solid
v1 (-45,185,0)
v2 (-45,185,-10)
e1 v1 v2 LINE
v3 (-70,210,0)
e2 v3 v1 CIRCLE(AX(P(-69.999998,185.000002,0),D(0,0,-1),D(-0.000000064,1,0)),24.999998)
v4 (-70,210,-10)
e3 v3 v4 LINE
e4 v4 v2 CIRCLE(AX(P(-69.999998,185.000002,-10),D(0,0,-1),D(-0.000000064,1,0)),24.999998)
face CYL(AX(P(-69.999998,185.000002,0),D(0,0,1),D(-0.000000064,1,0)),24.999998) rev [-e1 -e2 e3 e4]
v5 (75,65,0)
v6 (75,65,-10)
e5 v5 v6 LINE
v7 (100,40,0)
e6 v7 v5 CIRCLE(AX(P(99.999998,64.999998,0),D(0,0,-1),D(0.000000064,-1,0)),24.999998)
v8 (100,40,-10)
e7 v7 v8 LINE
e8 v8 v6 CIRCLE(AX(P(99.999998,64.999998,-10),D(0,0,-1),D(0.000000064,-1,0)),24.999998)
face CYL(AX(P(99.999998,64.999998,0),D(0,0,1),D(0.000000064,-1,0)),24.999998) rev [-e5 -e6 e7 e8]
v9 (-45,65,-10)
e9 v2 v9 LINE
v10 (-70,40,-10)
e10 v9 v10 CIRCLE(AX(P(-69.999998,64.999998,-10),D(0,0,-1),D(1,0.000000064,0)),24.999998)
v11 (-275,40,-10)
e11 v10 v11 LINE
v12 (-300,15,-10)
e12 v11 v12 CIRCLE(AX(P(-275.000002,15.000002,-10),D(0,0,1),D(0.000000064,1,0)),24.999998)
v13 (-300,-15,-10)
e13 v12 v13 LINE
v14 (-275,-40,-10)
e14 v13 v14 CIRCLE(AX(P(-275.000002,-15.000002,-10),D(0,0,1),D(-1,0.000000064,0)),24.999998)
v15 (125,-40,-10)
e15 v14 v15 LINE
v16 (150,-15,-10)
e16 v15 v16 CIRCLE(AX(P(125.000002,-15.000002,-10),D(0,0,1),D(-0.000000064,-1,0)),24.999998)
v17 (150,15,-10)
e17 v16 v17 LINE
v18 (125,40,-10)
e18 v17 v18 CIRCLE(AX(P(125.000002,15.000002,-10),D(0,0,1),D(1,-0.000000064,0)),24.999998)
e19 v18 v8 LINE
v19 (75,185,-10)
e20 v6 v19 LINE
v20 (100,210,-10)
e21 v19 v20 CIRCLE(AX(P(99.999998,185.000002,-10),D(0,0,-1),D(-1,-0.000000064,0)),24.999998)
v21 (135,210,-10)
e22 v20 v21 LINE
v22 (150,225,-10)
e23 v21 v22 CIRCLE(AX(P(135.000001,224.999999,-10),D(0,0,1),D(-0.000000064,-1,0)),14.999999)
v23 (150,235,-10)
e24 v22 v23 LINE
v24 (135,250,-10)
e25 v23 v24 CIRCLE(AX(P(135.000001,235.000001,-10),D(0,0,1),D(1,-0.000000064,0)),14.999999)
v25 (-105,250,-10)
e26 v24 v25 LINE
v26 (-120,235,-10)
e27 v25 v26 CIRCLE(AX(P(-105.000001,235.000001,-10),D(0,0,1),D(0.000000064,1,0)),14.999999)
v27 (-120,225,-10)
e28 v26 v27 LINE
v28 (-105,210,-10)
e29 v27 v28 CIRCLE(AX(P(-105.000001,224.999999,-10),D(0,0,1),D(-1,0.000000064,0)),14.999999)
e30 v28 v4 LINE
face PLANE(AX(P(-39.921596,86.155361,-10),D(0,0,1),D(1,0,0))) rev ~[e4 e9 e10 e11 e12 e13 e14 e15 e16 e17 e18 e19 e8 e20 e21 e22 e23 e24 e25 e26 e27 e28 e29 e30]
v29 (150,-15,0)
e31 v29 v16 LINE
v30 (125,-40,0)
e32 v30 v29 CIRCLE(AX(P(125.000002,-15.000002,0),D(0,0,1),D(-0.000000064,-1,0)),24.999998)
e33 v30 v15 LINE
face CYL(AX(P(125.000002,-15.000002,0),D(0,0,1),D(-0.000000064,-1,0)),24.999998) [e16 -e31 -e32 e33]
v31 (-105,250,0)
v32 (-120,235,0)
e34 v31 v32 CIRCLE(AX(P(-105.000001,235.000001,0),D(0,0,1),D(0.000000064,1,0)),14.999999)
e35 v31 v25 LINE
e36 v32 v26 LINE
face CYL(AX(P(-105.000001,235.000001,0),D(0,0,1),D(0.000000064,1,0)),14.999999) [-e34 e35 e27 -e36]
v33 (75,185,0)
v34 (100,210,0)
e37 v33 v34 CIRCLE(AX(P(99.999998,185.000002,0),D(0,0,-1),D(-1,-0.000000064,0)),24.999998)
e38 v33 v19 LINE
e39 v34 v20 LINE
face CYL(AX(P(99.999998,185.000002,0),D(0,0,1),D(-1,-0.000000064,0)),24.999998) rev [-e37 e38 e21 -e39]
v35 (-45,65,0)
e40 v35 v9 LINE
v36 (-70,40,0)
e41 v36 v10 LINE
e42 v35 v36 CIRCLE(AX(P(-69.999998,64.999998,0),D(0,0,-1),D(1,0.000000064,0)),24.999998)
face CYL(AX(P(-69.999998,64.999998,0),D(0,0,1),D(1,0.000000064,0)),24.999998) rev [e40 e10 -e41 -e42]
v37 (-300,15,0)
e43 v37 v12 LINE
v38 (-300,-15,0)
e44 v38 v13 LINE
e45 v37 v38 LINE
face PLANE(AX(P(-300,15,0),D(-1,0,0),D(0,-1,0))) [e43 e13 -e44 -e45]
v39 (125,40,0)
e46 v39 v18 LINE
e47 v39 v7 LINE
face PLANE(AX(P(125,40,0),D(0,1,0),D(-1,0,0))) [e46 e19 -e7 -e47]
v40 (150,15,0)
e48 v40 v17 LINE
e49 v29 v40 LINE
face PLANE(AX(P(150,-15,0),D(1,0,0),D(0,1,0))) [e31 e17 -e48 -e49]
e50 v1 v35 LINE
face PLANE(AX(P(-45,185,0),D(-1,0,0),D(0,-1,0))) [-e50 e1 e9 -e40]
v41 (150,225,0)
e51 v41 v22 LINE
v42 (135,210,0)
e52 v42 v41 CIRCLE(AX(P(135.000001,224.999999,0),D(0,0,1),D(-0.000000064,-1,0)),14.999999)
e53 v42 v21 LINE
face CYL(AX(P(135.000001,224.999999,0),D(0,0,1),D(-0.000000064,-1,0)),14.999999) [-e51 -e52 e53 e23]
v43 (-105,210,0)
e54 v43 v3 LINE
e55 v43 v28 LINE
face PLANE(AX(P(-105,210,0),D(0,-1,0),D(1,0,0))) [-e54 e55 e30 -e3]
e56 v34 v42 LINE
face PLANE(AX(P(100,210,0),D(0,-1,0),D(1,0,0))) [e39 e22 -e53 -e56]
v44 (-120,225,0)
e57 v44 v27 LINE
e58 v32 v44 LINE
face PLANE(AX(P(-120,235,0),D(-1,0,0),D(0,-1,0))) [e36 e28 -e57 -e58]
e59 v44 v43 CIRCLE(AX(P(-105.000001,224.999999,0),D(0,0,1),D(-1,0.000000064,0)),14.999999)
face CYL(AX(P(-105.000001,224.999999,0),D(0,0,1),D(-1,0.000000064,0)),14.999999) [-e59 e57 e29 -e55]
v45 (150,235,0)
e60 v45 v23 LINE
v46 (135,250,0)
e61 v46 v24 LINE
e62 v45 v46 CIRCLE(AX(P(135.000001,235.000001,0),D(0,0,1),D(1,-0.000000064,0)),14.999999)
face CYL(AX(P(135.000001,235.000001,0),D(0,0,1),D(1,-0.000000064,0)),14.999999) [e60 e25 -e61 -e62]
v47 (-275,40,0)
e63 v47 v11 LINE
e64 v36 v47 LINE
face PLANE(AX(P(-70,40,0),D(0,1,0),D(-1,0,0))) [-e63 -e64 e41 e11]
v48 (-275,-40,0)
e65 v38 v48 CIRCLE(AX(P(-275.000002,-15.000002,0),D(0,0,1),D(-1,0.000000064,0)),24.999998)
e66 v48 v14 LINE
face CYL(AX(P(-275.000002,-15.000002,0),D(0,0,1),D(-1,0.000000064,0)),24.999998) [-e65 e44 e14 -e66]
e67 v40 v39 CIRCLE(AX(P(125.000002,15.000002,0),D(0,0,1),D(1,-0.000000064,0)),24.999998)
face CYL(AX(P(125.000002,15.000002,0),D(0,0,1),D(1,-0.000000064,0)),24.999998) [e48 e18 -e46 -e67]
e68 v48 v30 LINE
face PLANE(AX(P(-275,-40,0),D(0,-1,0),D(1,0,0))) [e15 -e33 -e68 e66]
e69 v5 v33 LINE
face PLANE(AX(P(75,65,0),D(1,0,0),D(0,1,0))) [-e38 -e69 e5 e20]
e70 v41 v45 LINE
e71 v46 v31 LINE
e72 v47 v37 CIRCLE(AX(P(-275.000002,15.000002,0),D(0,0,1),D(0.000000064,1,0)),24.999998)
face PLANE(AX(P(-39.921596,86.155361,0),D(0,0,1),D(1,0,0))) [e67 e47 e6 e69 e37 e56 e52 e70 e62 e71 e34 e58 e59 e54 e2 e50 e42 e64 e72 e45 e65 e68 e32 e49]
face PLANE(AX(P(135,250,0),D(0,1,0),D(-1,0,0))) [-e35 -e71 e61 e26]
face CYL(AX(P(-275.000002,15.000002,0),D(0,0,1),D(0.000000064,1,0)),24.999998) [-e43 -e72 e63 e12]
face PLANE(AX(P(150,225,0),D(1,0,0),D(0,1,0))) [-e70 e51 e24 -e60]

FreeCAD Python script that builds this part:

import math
import FreeCAD as App
import Part
import Sketcher
from FreeCAD import Vector

doc = App.newDocument("Part")
body = doc.addObject("PartDesign::Body", "Body")

# Sketch on XY plane
sketch1 = doc.addObject("Sketcher::SketchObject", "Sketch")
body.addObject(sketch1)
sketch1.AttachmentSupport = (doc.XY_Plane, [""])
sketch1.MapMode = "FlatFace"
sketch1.addGeometry([
    Part.LineSegment(Vector(-70, 40, 0), Vector(-275, 40, 0)),  # 0
    Part.ArcOfCircle(Part.Circle(Vector(-275.000002, 15.000002, 0), Vector(0, 0, 1), 24.999998), math.radians(89.999996), math.radians(180.000004)),  # 1
    Part.LineSegment(Vector(-300, 15, 0), Vector(-300, -15, 0)),  # 2
    Part.ArcOfCircle(Part.Circle(Vector(-275.000002, -15.000002, 0), Vector(0, 0, 1), 24.999998), math.radians(179.999996), math.radians(270.000004)),  # 3
    Part.LineSegment(Vector(-275, -40, 0), Vector(125, -40, 0)),  # 4
    Part.ArcOfCircle(Part.Circle(Vector(125.000002, -15.000002, 0), Vector(0, 0, 1), 24.999998), math.radians(-90.000004), math.radians(0.000004)),  # 5
    Part.LineSegment(Vector(150, -15, 0), Vector(150, 15, 0)),  # 6
    Part.ArcOfCircle(Part.Circle(Vector(125.000002, 15.000002, 0), Vector(0, 0, 1), 24.999998), math.radians(-0.000004), math.radians(90.000004)),  # 7
    Part.LineSegment(Vector(125, 40, 0), Vector(100, 40, 0)),  # 8
    Part.ArcOfCircle(Part.Circle(Vector(99.999998, 64.999998, 0), Vector(0, 0, 1), 24.999998), math.radians(179.999996), math.radians(270.000004)),  # 9
    Part.LineSegment(Vector(75, 65, 0), Vector(75, 185, 0)),  # 10
    Part.ArcOfCircle(Part.Circle(Vector(99.999998, 185.000002, 0), Vector(0, 0, 1), 24.999998), math.radians(89.999996), math.radians(180.000004)),  # 11
    Part.LineSegment(Vector(100, 210, 0), Vector(135, 210, 0)),  # 12
    Part.ArcOfCircle(Part.Circle(Vector(135.000001, 224.999999, 0), Vector(0, 0, 1), 14.999999), math.radians(-90.000004), math.radians(0.000004)),  # 13
    Part.LineSegment(Vector(150, 225, 0), Vector(150, 235, 0)),  # 14
    Part.ArcOfCircle(Part.Circle(Vector(135.000001, 235.000001, 0), Vector(0, 0, 1), 14.999999), math.radians(-0.000004), math.radians(90.000004)),  # 15
    Part.LineSegment(Vector(135, 250, 0), Vector(-105, 250, 0)),  # 16
    Part.ArcOfCircle(Part.Circle(Vector(-105.000001, 235.000001, 0), Vector(0, 0, 1), 14.999999), math.radians(89.999996), math.radians(180.000004)),  # 17
    Part.LineSegment(Vector(-120, 235, 0), Vector(-120, 225, 0)),  # 18
    Part.ArcOfCircle(Part.Circle(Vector(-105.000001, 224.999999, 0), Vector(0, 0, 1), 14.999999), math.radians(179.999996), math.radians(270.000004)),  # 19
    Part.LineSegment(Vector(-105, 210, 0), Vector(-70, 210, 0)),  # 20
    Part.ArcOfCircle(Part.Circle(Vector(-69.999998, 185.000002, 0), Vector(0, 0, 1), 24.999998), math.radians(-0.000004), math.radians(90.000004)),  # 21
    Part.LineSegment(Vector(-45, 185, 0), Vector(-45, 65, 0)),  # 22
    Part.ArcOfCircle(Part.Circle(Vector(-69.999998, 64.999998, 0), Vector(0, 0, 1), 24.999998), math.radians(-90.000004), math.radians(0.000004)),  # 23
], False)
sketch1.addConstraint([
    Sketcher.Constraint("Tangent", 0, 2, 1, 1),
    Sketcher.Constraint("Tangent", 1, 2, 2, 1),
    Sketcher.Constraint("Tangent", 2, 2, 3, 1),
    Sketcher.Constraint("Tangent", 3, 2, 4, 1),
    Sketcher.Constraint("Tangent", 4, 2, 5, 1),
    Sketcher.Constraint("Tangent", 5, 2, 6, 1),
    Sketcher.Constraint("Tangent", 6, 2, 7, 1),
    Sketcher.Constraint("Tangent", 7, 2, 8, 1),
    Sketcher.Constraint("Tangent", 8, 2, 9, 2),
    Sketcher.Constraint("Tangent", 9, 1, 10, 1),
    Sketcher.Constraint("Tangent", 10, 2, 11, 2),
    Sketcher.Constraint("Tangent", 11, 1, 12, 1),
    Sketcher.Constraint("Tangent", 12, 2, 13, 1),
    Sketcher.Constraint("Tangent", 13, 2, 14, 1),
    Sketcher.Constraint("Tangent", 14, 2, 15, 1),
    Sketcher.Constraint("Tangent", 15, 2, 16, 1),
    Sketcher.Constraint("Tangent", 16, 2, 17, 1),
    Sketcher.Constraint("Tangent", 17, 2, 18, 1),
    Sketcher.Constraint("Tangent", 18, 2, 19, 1),
    Sketcher.Constraint("Tangent", 19, 2, 20, 1),
    Sketcher.Constraint("Tangent", 20, 2, 21, 2),
    Sketcher.Constraint("Tangent", 21, 1, 22, 1),
    Sketcher.Constraint("Tangent", 22, 2, 23, 2),
    Sketcher.Constraint("Tangent", 23, 1, 0, 1),
    Sketcher.Constraint("Horizontal", 0),
    Sketcher.Constraint("Vertical", 2),
    Sketcher.Constraint("Horizontal", 4),
    Sketcher.Constraint("Vertical", 6),
    Sketcher.Constraint("Horizontal", 8),
    Sketcher.Constraint("Vertical", 10),
    Sketcher.Constraint("Horizontal", 12),
    Sketcher.Constraint("Vertical", 14),
    Sketcher.Constraint("Horizontal", 16),
    Sketcher.Constraint("Vertical", 18),
    Sketcher.Constraint("Horizontal", 20),
    Sketcher.Constraint("Vertical", 22),
    Sketcher.Constraint("Equal", 1, 3),
    Sketcher.Constraint("Equal", 3, 5),
    Sketcher.Constraint("Equal", 5, 7),
    Sketcher.Constraint("Equal", 7, 9),
    Sketcher.Constraint("Equal", 9, 11),
    Sketcher.Constraint("Equal", 13, 15),
    Sketcher.Constraint("Equal", 15, 17),
    Sketcher.Constraint("Equal", 17, 19),
    Sketcher.Constraint("Equal", 11, 21),
    Sketcher.Constraint("Equal", 21, 23),
    Sketcher.Constraint("Horizontal", 1, 3, 7, 3),
    Sketcher.Constraint("Horizontal", 13, 3, 19, 3),
    Sketcher.Constraint("Vertical", 6, 2, 13, 2),
    Sketcher.Constraint("Equal", 12, 20),
    Sketcher.Constraint("Radius", 1, 24.999998),
    Sketcher.Constraint("Radius", 13, 14.999999),
    Sketcher.Constraint("DistanceX", 0, 2, 0, 1, 205.0),
    Sketcher.Constraint("DistanceX", 4, 1, 4, 2, 400.0),
    Sketcher.Constraint("DistanceX", 8, 2, 8, 1, 25.0),
    Sketcher.Constraint("DistanceY", 2, 2, 2, 1, 30.0),
    Sketcher.Constraint("DistanceY", 10, 1, 10, 2, 120.0),
    Sketcher.Constraint("DistanceY", 14, 1, 14, 2, 10.0),
    Sketcher.Constraint("DistanceX", 1, 3, -1, 1, 275.000002),
    Sketcher.Constraint("DistanceY", -1, 1, 1, 3, 15.000002),
])
pad1 = doc.addObject("PartDesign::Pad", "Pad")
body.addObject(pad1)
pad1.Profile = sketch1
pad1.Length = 10
pad1.Reversed = True

doc.recompute()
